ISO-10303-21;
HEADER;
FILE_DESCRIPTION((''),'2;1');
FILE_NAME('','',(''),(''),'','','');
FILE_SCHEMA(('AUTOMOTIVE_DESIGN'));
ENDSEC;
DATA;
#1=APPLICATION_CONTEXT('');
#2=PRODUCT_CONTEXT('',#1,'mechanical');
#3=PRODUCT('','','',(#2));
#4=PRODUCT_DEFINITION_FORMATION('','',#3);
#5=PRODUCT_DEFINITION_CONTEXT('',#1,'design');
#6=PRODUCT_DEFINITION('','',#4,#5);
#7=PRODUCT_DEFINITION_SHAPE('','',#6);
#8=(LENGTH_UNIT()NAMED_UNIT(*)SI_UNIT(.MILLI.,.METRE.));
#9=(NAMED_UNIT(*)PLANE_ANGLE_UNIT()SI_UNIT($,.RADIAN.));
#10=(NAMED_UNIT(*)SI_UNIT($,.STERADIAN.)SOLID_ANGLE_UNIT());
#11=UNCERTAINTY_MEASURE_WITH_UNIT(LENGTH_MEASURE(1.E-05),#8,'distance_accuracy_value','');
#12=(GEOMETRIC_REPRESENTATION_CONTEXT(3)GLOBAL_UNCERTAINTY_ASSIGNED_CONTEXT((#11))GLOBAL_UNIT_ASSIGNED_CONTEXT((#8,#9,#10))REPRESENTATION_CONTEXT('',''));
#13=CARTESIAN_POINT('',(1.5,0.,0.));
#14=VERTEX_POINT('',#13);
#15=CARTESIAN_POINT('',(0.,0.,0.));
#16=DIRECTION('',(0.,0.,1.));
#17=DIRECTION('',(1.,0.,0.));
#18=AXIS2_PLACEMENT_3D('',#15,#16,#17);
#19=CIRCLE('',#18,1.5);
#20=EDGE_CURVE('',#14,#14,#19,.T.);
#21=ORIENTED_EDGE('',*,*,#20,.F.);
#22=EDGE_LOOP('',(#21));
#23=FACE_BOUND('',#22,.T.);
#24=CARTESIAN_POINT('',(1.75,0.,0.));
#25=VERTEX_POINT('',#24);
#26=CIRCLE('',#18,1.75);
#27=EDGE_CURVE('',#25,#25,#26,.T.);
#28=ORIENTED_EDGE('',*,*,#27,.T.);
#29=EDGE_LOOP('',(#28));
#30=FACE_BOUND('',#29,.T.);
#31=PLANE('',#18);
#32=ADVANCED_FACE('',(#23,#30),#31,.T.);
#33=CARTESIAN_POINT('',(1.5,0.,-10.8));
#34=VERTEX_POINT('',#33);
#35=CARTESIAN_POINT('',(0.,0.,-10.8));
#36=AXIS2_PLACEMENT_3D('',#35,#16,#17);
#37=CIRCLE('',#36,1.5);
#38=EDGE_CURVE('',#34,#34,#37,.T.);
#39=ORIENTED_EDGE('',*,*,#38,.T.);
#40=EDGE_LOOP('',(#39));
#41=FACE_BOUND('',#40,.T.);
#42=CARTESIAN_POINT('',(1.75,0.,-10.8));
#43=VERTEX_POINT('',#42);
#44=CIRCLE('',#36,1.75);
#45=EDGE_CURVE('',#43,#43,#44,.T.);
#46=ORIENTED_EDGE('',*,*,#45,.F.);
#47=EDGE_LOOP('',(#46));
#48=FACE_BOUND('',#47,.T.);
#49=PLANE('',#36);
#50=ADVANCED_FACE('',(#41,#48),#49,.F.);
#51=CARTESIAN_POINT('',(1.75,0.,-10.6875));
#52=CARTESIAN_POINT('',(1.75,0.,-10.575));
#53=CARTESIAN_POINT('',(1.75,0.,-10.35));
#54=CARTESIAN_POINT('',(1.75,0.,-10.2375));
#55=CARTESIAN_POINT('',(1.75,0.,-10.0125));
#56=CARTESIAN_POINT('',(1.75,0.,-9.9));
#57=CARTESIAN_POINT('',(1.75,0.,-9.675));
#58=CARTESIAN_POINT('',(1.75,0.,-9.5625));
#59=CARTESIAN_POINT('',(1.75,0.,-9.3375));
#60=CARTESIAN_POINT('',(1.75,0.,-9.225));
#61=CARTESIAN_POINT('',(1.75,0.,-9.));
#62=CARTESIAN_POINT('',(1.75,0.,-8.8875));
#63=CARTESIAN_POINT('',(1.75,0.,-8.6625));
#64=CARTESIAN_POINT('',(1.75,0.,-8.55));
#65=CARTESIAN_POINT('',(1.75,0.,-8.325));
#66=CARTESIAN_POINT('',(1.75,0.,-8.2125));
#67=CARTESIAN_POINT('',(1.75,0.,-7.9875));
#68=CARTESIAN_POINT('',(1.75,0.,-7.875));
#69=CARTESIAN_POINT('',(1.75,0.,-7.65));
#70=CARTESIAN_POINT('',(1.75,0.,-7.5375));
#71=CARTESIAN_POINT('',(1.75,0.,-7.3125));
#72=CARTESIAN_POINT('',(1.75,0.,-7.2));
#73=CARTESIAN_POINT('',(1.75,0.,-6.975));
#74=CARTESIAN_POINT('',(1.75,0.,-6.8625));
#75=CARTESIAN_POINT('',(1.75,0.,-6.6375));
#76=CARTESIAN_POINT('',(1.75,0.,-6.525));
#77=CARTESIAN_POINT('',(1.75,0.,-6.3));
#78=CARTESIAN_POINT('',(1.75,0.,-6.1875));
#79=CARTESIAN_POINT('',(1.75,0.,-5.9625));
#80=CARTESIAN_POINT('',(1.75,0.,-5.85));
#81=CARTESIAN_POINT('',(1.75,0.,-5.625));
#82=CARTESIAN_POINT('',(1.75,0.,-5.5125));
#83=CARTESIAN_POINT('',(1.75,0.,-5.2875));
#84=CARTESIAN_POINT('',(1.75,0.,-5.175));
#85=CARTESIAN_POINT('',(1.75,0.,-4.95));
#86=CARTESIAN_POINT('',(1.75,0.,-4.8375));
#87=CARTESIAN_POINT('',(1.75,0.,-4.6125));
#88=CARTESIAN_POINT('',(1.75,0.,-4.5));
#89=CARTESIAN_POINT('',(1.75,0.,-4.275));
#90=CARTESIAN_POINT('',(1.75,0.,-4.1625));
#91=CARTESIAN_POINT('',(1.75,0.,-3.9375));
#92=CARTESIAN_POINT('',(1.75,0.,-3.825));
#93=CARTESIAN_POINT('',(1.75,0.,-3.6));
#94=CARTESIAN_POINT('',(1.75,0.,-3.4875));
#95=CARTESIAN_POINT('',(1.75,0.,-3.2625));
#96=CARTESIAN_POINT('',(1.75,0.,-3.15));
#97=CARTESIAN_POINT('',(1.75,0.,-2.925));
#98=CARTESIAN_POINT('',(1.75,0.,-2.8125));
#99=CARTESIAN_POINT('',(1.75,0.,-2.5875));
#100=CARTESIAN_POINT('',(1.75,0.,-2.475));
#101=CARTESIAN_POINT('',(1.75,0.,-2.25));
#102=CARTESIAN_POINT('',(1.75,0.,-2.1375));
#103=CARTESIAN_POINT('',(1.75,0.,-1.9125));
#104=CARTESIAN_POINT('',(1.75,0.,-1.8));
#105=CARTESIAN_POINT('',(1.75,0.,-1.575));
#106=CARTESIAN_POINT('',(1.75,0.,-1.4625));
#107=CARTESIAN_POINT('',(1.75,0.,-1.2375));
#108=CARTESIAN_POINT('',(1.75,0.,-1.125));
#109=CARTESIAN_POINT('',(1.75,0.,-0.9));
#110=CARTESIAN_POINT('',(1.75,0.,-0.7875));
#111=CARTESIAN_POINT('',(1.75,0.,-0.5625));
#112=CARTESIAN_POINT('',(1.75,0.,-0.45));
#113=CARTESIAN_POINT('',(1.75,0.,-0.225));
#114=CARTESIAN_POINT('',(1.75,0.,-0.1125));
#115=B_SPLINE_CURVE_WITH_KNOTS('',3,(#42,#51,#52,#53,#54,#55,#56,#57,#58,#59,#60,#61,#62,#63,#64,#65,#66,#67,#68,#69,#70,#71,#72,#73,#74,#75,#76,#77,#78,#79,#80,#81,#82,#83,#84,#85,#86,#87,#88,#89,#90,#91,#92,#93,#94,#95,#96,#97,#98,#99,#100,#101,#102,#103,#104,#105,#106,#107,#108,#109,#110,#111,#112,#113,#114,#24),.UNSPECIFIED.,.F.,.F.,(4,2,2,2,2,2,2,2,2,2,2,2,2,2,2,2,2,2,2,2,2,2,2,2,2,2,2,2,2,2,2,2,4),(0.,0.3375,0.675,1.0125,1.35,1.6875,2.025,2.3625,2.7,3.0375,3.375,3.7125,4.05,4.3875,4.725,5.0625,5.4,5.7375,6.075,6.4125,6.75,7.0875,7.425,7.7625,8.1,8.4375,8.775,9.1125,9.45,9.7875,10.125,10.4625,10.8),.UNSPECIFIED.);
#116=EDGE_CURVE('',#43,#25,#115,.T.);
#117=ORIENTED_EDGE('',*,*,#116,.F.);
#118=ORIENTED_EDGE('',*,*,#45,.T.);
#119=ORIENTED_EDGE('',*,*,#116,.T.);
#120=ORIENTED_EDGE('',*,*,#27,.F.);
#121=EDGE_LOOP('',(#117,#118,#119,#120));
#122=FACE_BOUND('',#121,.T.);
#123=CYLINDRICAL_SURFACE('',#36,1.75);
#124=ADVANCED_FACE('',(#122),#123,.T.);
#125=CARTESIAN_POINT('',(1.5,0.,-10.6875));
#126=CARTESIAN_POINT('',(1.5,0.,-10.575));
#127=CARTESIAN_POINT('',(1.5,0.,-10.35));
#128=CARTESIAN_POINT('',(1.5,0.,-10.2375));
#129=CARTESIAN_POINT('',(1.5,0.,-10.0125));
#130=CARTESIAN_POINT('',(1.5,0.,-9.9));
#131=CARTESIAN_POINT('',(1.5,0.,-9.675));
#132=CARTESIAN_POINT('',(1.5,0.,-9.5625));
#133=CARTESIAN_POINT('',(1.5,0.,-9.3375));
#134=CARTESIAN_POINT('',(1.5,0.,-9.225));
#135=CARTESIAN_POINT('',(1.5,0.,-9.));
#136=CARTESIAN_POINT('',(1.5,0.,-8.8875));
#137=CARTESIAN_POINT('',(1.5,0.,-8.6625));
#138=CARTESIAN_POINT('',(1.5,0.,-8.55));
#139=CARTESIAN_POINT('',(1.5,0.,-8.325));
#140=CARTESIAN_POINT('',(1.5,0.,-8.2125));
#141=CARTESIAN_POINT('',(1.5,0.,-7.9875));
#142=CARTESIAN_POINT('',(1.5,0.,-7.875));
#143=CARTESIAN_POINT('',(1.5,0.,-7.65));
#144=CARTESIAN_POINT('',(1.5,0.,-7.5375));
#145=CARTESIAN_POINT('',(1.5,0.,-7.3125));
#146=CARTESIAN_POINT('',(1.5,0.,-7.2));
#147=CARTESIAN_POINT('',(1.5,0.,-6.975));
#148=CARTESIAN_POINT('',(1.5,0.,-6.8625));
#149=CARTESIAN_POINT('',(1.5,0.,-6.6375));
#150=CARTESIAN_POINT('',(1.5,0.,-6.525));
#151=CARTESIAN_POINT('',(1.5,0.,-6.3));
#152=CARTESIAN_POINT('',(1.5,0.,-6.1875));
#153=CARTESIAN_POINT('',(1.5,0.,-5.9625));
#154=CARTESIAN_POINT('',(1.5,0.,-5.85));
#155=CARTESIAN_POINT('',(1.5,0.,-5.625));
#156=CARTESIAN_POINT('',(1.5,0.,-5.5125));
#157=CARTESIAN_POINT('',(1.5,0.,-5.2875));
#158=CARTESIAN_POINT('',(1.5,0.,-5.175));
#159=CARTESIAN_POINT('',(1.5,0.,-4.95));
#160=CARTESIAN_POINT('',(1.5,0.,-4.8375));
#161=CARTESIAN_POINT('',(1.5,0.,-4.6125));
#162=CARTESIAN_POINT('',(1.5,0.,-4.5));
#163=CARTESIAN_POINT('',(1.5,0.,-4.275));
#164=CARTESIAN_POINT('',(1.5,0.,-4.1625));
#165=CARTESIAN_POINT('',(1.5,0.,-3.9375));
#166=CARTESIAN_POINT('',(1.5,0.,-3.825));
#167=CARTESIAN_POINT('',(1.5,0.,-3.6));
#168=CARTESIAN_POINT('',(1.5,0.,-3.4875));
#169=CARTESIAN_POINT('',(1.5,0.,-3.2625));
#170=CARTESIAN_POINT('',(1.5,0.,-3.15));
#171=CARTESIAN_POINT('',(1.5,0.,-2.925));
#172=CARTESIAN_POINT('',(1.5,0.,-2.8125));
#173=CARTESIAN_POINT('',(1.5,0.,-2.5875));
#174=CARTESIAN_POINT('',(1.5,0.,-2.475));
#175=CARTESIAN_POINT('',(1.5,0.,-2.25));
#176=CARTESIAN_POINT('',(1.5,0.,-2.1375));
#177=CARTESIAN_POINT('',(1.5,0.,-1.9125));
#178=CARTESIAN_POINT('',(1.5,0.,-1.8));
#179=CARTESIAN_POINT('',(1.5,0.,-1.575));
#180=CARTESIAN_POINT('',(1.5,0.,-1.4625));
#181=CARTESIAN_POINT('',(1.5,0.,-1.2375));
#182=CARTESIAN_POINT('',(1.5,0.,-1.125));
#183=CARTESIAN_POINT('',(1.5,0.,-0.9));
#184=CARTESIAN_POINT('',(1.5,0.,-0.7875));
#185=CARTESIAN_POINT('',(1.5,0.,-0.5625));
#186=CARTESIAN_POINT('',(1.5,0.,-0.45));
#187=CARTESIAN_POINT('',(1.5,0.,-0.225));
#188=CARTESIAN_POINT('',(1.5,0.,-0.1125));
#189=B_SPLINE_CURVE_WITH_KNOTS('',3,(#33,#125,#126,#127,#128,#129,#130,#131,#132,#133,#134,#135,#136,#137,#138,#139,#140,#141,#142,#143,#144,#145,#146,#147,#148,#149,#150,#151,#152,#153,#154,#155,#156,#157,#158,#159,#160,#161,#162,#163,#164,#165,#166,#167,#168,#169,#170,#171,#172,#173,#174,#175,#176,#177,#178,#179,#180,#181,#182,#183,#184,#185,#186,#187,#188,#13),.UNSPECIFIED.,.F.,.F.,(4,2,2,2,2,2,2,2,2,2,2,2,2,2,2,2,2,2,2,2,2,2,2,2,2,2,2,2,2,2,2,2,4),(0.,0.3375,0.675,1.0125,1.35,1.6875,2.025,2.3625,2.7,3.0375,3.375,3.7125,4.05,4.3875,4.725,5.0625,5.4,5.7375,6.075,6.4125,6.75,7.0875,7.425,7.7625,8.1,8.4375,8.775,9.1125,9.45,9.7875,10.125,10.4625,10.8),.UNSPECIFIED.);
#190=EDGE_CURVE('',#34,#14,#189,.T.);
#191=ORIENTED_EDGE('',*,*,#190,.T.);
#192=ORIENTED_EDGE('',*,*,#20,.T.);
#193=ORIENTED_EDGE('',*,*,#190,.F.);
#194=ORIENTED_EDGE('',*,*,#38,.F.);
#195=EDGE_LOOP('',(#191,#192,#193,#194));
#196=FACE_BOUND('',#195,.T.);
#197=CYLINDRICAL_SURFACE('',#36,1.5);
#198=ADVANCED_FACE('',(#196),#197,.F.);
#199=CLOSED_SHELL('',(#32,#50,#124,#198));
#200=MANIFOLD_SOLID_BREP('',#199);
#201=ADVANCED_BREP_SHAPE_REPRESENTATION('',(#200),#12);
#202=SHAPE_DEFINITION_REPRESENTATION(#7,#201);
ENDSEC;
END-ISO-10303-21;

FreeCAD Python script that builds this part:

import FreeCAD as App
import Part
import Sketcher
Q = App.Units.Quantity

doc = App.newDocument("Part")
body = doc.addObject("PartDesign::Body", "Body")

sketch1 = body.newObject("Sketcher::SketchObject", "Sketch")
sketch1.AttachmentSupport = (doc.getObject("XY_Plane"), [""])
sketch1.MapMode = "FlatFace"
sketch1.addGeometry([
    Part.Circle(App.Vector(0, 0, 0), App.Vector(0, 0, 1), 1.75),
    Part.Circle(App.Vector(0, 0, 0), App.Vector(0, 0, 1), 1.5),
], False)
sketch1.addConstraint([
    Sketcher.Constraint("Coincident", 0, 3, -1, 1),
    Sketcher.Constraint("Coincident", 1, 3, -1, 1),
    Sketcher.Constraint("Diameter", 1, Q("3 mm")),
    Sketcher.Constraint("Diameter", 0, Q("3.5 mm")),
])
pad1 = body.newObject("PartDesign::Pad", "Pad")
pad1.Profile = sketch1
pad1.Length = 10.8
pad1.Reversed = True

doc.recompute()
